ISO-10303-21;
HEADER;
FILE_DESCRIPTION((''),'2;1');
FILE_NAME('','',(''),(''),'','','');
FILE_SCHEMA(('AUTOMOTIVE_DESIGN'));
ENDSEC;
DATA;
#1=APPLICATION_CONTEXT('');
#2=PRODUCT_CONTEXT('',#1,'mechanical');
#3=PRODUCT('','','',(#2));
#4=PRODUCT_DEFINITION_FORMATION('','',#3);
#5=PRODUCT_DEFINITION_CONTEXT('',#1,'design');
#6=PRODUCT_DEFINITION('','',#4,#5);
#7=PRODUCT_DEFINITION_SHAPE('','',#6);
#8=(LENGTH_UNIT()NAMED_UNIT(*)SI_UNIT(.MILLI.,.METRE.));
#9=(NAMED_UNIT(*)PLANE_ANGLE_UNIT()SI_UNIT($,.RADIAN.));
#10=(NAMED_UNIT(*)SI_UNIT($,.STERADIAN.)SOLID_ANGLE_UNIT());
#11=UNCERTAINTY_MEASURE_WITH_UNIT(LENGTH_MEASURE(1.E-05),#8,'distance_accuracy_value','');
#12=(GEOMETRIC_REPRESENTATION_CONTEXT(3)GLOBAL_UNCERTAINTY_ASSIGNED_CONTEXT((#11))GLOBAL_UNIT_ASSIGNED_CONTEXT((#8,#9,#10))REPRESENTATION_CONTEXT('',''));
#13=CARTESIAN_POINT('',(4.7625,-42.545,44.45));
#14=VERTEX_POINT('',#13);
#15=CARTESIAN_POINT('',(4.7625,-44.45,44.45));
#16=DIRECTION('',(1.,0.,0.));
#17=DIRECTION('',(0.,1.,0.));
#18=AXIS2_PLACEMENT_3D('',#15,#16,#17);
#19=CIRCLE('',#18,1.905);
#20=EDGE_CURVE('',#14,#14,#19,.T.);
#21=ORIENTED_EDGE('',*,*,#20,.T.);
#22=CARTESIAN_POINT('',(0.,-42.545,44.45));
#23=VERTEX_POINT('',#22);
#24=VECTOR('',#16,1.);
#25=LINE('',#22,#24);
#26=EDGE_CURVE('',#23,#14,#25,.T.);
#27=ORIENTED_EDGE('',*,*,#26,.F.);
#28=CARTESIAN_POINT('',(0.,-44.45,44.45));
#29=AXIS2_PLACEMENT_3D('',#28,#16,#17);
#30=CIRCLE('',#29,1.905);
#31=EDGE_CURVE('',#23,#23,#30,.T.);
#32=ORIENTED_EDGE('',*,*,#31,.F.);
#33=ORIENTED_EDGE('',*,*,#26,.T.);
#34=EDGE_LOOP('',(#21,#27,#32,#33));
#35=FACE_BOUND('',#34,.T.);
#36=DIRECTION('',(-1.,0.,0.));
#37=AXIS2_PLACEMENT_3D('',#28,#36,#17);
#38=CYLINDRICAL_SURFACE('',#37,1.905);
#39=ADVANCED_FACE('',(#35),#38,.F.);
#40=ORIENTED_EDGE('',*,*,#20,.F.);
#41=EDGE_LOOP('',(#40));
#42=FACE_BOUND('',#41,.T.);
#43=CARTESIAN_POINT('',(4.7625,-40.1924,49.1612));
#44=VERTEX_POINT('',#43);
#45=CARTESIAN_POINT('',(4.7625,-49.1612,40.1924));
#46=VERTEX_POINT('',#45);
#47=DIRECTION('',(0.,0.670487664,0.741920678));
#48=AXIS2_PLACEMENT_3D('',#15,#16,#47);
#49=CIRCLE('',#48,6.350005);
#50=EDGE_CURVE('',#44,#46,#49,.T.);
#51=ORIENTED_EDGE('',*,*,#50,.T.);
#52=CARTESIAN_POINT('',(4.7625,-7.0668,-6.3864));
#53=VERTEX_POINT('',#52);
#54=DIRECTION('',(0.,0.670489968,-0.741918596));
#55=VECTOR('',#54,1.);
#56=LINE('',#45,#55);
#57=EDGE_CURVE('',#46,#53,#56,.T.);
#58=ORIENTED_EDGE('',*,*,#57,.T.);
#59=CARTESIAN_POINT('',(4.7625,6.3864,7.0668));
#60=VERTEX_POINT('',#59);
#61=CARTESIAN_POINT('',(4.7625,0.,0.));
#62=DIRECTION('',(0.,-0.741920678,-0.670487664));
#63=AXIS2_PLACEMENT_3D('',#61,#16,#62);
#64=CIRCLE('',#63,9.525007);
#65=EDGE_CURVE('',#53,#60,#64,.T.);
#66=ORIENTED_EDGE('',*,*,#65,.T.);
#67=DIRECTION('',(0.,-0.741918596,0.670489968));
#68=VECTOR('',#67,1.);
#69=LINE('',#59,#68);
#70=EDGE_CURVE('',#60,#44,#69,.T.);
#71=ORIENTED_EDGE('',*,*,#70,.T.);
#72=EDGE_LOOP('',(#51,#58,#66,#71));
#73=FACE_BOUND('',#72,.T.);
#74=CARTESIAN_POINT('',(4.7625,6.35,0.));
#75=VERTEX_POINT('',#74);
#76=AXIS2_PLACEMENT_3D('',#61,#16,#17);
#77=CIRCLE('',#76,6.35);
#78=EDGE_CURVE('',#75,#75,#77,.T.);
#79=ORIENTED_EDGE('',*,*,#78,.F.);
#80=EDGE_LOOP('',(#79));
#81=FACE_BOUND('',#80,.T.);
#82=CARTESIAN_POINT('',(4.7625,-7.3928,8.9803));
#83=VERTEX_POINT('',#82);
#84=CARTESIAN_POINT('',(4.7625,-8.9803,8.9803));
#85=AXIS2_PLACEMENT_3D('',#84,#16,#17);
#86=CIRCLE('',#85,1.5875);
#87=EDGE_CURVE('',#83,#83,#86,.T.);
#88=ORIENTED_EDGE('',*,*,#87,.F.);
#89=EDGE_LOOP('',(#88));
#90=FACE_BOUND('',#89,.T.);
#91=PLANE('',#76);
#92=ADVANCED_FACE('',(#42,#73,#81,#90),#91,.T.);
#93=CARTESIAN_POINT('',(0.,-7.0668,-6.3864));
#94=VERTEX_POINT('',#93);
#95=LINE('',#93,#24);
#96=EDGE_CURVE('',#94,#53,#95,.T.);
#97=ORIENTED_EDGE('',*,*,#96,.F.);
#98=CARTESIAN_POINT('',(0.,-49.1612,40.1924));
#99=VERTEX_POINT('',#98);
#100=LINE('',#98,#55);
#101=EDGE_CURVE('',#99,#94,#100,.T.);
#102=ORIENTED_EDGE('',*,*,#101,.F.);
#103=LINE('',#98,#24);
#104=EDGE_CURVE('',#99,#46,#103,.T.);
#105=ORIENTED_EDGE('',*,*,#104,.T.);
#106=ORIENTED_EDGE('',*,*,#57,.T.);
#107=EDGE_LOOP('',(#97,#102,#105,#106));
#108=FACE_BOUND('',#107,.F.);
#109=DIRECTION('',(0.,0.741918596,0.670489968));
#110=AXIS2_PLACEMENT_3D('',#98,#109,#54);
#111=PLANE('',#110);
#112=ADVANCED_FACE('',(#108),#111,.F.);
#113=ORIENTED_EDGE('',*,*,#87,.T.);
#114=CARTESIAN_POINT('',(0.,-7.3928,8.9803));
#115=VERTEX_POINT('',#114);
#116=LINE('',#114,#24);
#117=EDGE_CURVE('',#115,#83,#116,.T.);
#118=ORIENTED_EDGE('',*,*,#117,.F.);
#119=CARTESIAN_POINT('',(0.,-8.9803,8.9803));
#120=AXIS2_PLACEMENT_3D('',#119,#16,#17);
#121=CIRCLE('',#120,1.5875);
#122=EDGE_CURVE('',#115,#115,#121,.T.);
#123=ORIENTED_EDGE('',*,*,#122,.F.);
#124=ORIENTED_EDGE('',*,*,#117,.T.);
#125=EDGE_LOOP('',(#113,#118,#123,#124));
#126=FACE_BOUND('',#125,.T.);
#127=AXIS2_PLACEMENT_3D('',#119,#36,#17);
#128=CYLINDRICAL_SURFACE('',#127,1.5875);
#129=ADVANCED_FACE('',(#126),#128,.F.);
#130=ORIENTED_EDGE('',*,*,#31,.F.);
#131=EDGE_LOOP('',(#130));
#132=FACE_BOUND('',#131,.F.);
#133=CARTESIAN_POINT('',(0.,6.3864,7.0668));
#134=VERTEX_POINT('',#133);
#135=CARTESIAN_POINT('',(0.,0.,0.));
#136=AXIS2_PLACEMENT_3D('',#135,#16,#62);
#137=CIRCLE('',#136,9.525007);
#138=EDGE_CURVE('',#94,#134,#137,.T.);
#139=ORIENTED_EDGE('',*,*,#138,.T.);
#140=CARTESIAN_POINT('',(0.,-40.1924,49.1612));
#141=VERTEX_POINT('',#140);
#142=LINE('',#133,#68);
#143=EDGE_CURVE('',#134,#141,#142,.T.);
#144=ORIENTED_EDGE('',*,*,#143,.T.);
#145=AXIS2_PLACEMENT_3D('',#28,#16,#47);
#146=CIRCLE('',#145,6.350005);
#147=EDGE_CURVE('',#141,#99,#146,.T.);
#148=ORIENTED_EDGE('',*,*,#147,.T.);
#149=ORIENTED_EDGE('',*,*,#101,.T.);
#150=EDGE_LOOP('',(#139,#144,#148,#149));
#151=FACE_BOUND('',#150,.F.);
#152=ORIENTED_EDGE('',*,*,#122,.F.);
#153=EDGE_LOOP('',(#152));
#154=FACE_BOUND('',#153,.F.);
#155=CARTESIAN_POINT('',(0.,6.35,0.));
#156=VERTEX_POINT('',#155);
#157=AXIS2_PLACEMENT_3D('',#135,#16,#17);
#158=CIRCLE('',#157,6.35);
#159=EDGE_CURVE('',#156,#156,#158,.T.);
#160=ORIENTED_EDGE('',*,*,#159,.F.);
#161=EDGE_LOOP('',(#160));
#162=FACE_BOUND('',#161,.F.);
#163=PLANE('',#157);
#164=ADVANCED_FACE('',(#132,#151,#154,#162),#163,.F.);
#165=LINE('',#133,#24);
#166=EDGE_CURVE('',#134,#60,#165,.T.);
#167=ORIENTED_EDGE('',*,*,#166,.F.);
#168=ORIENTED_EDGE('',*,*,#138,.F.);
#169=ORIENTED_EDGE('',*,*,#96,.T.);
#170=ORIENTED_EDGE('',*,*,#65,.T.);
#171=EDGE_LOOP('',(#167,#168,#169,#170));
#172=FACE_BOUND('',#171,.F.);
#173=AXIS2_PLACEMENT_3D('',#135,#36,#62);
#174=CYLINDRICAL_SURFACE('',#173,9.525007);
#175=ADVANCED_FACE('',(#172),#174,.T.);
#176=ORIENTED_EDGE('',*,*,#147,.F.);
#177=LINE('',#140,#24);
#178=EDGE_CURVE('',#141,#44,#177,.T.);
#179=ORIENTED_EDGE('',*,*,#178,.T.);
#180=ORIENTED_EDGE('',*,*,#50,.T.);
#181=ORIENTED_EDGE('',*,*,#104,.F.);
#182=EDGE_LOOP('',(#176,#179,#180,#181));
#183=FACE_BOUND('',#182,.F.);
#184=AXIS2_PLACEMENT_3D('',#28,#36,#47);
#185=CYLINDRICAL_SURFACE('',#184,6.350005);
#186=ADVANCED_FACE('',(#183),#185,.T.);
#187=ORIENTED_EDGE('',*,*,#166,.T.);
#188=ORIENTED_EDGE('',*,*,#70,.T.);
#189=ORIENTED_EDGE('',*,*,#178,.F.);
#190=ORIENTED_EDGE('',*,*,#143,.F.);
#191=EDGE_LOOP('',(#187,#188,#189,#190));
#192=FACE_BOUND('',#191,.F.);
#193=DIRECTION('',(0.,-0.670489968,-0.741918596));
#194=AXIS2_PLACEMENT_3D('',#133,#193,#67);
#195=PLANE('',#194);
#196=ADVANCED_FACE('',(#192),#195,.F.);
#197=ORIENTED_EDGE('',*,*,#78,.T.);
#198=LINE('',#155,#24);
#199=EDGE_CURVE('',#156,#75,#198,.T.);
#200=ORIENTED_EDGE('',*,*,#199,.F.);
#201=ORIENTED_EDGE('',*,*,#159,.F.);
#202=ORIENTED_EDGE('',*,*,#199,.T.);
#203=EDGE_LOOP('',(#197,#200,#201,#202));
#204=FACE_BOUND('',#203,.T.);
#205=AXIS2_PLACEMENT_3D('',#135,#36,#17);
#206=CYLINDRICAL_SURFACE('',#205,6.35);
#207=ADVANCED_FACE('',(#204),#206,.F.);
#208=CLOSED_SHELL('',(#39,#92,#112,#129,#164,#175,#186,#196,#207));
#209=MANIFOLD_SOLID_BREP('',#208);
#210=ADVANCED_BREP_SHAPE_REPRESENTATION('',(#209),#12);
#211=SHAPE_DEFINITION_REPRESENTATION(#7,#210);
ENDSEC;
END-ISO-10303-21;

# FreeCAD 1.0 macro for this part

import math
import FreeCAD as App
import Part
import Sketcher

V = App.Vector
Q = App.Units.Quantity

doc = App.newDocument("Part")
params = doc.addObject("Spreadsheet::Sheet", "Params")
for row, (alias, value) in enumerate([
    ("sketch1_diameter", "0.5 in"),
    ("sketch1_diameter2", "0.15 in"),
    ("sketch1_diameter3", "0.125 in"),
    ("sketch1_radius", "0.375 in"),
    ("pad1_length", "0.1875 in"),
], start=1):
    params.set(f"A{row}", alias)
    params.set(f"B{row}", "=" + value)
    params.setAlias(f"B{row}", alias)

body = doc.addObject("PartDesign::Body", "Body")

sketch1 = body.newObject("Sketcher::SketchObject", "Sketch")
sketch1.AttachmentSupport = (doc.getObject("YZ_Plane"), [""])
sketch1.MapMode = "FlatFace"
sketch1.addGeometry([
    Part.LineSegment(V(6.4, 7.1, 0), V(-40.2, 49.2, 0)),
    Part.ArcOfCircle(Part.Circle(V(-44.5, 44.5, 0), V(0, 0, 1), 6.4), math.radians(48), math.radians(222)),
    Part.LineSegment(V(-49.2, 40.2, 0), V(-7.1, -6.4, 0)),
    Part.ArcOfCircle(Part.Circle(V(0, 0, 0), V(0, 0, 1), 9.5), math.radians(-138), math.radians(48)),
    Part.Circle(V(0, 0, 0), V(0, 0, 1), 6.3),
    Part.Circle(V(-9, 9, 0), V(0, 0, 1), 1.6),
    Part.Circle(V(-44.5, 44.5, 0), V(0, 0, 1), 1.9),
], False)
sketch1.addConstraint([
    Sketcher.Constraint("Tangent", 0, 2, 1, 1),
    Sketcher.Constraint("Tangent", 1, 2, 2, 1),
    Sketcher.Constraint("Tangent", 2, 2, 3, 1),
    Sketcher.Constraint("Tangent", 3, 2, 0, 1),
    Sketcher.Constraint("Coincident", 3, 3, -1, 1),
    Sketcher.Constraint("Coincident", 4, 3, -1, 1),
    Sketcher.Constraint("Coincident", 6, 3, 1, 3),
    Sketcher.Constraint("Equal", 1, 4),
    Sketcher.Constraint("Diameter", 4, Q("0.5 in")),
    Sketcher.Constraint("Diameter", 6, Q("0.15 in")),
    Sketcher.Constraint("Diameter", 5, Q("0.125 in")),
    Sketcher.Constraint("Radius", 3, Q("0.375 in")),
    Sketcher.Constraint("DistanceX", 1, 3, -1, 1, Q("1.75 in")),
    Sketcher.Constraint("DistanceY", -1, 1, 1, 3, Q("1.75 in")),
    Sketcher.Constraint("DistanceY", 2, 2, 5, 3, Q("0.605 in")),
    Sketcher.Constraint("DistanceX", 5, 3, 3, 2, Q("0.605 in")),
])
sketch1.setExpression("Constraints[8]", "Params.sketch1_diameter")
sketch1.setExpression("Constraints[9]", "Params.sketch1_diameter2")
sketch1.setExpression("Constraints[10]", "Params.sketch1_diameter3")
sketch1.setExpression("Constraints[11]", "Params.sketch1_radius")
pad1 = body.newObject("PartDesign::Pad", "Pad")
pad1.Profile = sketch1
pad1.setExpression("Length", "Params.pad1_length")

doc.recompute()
